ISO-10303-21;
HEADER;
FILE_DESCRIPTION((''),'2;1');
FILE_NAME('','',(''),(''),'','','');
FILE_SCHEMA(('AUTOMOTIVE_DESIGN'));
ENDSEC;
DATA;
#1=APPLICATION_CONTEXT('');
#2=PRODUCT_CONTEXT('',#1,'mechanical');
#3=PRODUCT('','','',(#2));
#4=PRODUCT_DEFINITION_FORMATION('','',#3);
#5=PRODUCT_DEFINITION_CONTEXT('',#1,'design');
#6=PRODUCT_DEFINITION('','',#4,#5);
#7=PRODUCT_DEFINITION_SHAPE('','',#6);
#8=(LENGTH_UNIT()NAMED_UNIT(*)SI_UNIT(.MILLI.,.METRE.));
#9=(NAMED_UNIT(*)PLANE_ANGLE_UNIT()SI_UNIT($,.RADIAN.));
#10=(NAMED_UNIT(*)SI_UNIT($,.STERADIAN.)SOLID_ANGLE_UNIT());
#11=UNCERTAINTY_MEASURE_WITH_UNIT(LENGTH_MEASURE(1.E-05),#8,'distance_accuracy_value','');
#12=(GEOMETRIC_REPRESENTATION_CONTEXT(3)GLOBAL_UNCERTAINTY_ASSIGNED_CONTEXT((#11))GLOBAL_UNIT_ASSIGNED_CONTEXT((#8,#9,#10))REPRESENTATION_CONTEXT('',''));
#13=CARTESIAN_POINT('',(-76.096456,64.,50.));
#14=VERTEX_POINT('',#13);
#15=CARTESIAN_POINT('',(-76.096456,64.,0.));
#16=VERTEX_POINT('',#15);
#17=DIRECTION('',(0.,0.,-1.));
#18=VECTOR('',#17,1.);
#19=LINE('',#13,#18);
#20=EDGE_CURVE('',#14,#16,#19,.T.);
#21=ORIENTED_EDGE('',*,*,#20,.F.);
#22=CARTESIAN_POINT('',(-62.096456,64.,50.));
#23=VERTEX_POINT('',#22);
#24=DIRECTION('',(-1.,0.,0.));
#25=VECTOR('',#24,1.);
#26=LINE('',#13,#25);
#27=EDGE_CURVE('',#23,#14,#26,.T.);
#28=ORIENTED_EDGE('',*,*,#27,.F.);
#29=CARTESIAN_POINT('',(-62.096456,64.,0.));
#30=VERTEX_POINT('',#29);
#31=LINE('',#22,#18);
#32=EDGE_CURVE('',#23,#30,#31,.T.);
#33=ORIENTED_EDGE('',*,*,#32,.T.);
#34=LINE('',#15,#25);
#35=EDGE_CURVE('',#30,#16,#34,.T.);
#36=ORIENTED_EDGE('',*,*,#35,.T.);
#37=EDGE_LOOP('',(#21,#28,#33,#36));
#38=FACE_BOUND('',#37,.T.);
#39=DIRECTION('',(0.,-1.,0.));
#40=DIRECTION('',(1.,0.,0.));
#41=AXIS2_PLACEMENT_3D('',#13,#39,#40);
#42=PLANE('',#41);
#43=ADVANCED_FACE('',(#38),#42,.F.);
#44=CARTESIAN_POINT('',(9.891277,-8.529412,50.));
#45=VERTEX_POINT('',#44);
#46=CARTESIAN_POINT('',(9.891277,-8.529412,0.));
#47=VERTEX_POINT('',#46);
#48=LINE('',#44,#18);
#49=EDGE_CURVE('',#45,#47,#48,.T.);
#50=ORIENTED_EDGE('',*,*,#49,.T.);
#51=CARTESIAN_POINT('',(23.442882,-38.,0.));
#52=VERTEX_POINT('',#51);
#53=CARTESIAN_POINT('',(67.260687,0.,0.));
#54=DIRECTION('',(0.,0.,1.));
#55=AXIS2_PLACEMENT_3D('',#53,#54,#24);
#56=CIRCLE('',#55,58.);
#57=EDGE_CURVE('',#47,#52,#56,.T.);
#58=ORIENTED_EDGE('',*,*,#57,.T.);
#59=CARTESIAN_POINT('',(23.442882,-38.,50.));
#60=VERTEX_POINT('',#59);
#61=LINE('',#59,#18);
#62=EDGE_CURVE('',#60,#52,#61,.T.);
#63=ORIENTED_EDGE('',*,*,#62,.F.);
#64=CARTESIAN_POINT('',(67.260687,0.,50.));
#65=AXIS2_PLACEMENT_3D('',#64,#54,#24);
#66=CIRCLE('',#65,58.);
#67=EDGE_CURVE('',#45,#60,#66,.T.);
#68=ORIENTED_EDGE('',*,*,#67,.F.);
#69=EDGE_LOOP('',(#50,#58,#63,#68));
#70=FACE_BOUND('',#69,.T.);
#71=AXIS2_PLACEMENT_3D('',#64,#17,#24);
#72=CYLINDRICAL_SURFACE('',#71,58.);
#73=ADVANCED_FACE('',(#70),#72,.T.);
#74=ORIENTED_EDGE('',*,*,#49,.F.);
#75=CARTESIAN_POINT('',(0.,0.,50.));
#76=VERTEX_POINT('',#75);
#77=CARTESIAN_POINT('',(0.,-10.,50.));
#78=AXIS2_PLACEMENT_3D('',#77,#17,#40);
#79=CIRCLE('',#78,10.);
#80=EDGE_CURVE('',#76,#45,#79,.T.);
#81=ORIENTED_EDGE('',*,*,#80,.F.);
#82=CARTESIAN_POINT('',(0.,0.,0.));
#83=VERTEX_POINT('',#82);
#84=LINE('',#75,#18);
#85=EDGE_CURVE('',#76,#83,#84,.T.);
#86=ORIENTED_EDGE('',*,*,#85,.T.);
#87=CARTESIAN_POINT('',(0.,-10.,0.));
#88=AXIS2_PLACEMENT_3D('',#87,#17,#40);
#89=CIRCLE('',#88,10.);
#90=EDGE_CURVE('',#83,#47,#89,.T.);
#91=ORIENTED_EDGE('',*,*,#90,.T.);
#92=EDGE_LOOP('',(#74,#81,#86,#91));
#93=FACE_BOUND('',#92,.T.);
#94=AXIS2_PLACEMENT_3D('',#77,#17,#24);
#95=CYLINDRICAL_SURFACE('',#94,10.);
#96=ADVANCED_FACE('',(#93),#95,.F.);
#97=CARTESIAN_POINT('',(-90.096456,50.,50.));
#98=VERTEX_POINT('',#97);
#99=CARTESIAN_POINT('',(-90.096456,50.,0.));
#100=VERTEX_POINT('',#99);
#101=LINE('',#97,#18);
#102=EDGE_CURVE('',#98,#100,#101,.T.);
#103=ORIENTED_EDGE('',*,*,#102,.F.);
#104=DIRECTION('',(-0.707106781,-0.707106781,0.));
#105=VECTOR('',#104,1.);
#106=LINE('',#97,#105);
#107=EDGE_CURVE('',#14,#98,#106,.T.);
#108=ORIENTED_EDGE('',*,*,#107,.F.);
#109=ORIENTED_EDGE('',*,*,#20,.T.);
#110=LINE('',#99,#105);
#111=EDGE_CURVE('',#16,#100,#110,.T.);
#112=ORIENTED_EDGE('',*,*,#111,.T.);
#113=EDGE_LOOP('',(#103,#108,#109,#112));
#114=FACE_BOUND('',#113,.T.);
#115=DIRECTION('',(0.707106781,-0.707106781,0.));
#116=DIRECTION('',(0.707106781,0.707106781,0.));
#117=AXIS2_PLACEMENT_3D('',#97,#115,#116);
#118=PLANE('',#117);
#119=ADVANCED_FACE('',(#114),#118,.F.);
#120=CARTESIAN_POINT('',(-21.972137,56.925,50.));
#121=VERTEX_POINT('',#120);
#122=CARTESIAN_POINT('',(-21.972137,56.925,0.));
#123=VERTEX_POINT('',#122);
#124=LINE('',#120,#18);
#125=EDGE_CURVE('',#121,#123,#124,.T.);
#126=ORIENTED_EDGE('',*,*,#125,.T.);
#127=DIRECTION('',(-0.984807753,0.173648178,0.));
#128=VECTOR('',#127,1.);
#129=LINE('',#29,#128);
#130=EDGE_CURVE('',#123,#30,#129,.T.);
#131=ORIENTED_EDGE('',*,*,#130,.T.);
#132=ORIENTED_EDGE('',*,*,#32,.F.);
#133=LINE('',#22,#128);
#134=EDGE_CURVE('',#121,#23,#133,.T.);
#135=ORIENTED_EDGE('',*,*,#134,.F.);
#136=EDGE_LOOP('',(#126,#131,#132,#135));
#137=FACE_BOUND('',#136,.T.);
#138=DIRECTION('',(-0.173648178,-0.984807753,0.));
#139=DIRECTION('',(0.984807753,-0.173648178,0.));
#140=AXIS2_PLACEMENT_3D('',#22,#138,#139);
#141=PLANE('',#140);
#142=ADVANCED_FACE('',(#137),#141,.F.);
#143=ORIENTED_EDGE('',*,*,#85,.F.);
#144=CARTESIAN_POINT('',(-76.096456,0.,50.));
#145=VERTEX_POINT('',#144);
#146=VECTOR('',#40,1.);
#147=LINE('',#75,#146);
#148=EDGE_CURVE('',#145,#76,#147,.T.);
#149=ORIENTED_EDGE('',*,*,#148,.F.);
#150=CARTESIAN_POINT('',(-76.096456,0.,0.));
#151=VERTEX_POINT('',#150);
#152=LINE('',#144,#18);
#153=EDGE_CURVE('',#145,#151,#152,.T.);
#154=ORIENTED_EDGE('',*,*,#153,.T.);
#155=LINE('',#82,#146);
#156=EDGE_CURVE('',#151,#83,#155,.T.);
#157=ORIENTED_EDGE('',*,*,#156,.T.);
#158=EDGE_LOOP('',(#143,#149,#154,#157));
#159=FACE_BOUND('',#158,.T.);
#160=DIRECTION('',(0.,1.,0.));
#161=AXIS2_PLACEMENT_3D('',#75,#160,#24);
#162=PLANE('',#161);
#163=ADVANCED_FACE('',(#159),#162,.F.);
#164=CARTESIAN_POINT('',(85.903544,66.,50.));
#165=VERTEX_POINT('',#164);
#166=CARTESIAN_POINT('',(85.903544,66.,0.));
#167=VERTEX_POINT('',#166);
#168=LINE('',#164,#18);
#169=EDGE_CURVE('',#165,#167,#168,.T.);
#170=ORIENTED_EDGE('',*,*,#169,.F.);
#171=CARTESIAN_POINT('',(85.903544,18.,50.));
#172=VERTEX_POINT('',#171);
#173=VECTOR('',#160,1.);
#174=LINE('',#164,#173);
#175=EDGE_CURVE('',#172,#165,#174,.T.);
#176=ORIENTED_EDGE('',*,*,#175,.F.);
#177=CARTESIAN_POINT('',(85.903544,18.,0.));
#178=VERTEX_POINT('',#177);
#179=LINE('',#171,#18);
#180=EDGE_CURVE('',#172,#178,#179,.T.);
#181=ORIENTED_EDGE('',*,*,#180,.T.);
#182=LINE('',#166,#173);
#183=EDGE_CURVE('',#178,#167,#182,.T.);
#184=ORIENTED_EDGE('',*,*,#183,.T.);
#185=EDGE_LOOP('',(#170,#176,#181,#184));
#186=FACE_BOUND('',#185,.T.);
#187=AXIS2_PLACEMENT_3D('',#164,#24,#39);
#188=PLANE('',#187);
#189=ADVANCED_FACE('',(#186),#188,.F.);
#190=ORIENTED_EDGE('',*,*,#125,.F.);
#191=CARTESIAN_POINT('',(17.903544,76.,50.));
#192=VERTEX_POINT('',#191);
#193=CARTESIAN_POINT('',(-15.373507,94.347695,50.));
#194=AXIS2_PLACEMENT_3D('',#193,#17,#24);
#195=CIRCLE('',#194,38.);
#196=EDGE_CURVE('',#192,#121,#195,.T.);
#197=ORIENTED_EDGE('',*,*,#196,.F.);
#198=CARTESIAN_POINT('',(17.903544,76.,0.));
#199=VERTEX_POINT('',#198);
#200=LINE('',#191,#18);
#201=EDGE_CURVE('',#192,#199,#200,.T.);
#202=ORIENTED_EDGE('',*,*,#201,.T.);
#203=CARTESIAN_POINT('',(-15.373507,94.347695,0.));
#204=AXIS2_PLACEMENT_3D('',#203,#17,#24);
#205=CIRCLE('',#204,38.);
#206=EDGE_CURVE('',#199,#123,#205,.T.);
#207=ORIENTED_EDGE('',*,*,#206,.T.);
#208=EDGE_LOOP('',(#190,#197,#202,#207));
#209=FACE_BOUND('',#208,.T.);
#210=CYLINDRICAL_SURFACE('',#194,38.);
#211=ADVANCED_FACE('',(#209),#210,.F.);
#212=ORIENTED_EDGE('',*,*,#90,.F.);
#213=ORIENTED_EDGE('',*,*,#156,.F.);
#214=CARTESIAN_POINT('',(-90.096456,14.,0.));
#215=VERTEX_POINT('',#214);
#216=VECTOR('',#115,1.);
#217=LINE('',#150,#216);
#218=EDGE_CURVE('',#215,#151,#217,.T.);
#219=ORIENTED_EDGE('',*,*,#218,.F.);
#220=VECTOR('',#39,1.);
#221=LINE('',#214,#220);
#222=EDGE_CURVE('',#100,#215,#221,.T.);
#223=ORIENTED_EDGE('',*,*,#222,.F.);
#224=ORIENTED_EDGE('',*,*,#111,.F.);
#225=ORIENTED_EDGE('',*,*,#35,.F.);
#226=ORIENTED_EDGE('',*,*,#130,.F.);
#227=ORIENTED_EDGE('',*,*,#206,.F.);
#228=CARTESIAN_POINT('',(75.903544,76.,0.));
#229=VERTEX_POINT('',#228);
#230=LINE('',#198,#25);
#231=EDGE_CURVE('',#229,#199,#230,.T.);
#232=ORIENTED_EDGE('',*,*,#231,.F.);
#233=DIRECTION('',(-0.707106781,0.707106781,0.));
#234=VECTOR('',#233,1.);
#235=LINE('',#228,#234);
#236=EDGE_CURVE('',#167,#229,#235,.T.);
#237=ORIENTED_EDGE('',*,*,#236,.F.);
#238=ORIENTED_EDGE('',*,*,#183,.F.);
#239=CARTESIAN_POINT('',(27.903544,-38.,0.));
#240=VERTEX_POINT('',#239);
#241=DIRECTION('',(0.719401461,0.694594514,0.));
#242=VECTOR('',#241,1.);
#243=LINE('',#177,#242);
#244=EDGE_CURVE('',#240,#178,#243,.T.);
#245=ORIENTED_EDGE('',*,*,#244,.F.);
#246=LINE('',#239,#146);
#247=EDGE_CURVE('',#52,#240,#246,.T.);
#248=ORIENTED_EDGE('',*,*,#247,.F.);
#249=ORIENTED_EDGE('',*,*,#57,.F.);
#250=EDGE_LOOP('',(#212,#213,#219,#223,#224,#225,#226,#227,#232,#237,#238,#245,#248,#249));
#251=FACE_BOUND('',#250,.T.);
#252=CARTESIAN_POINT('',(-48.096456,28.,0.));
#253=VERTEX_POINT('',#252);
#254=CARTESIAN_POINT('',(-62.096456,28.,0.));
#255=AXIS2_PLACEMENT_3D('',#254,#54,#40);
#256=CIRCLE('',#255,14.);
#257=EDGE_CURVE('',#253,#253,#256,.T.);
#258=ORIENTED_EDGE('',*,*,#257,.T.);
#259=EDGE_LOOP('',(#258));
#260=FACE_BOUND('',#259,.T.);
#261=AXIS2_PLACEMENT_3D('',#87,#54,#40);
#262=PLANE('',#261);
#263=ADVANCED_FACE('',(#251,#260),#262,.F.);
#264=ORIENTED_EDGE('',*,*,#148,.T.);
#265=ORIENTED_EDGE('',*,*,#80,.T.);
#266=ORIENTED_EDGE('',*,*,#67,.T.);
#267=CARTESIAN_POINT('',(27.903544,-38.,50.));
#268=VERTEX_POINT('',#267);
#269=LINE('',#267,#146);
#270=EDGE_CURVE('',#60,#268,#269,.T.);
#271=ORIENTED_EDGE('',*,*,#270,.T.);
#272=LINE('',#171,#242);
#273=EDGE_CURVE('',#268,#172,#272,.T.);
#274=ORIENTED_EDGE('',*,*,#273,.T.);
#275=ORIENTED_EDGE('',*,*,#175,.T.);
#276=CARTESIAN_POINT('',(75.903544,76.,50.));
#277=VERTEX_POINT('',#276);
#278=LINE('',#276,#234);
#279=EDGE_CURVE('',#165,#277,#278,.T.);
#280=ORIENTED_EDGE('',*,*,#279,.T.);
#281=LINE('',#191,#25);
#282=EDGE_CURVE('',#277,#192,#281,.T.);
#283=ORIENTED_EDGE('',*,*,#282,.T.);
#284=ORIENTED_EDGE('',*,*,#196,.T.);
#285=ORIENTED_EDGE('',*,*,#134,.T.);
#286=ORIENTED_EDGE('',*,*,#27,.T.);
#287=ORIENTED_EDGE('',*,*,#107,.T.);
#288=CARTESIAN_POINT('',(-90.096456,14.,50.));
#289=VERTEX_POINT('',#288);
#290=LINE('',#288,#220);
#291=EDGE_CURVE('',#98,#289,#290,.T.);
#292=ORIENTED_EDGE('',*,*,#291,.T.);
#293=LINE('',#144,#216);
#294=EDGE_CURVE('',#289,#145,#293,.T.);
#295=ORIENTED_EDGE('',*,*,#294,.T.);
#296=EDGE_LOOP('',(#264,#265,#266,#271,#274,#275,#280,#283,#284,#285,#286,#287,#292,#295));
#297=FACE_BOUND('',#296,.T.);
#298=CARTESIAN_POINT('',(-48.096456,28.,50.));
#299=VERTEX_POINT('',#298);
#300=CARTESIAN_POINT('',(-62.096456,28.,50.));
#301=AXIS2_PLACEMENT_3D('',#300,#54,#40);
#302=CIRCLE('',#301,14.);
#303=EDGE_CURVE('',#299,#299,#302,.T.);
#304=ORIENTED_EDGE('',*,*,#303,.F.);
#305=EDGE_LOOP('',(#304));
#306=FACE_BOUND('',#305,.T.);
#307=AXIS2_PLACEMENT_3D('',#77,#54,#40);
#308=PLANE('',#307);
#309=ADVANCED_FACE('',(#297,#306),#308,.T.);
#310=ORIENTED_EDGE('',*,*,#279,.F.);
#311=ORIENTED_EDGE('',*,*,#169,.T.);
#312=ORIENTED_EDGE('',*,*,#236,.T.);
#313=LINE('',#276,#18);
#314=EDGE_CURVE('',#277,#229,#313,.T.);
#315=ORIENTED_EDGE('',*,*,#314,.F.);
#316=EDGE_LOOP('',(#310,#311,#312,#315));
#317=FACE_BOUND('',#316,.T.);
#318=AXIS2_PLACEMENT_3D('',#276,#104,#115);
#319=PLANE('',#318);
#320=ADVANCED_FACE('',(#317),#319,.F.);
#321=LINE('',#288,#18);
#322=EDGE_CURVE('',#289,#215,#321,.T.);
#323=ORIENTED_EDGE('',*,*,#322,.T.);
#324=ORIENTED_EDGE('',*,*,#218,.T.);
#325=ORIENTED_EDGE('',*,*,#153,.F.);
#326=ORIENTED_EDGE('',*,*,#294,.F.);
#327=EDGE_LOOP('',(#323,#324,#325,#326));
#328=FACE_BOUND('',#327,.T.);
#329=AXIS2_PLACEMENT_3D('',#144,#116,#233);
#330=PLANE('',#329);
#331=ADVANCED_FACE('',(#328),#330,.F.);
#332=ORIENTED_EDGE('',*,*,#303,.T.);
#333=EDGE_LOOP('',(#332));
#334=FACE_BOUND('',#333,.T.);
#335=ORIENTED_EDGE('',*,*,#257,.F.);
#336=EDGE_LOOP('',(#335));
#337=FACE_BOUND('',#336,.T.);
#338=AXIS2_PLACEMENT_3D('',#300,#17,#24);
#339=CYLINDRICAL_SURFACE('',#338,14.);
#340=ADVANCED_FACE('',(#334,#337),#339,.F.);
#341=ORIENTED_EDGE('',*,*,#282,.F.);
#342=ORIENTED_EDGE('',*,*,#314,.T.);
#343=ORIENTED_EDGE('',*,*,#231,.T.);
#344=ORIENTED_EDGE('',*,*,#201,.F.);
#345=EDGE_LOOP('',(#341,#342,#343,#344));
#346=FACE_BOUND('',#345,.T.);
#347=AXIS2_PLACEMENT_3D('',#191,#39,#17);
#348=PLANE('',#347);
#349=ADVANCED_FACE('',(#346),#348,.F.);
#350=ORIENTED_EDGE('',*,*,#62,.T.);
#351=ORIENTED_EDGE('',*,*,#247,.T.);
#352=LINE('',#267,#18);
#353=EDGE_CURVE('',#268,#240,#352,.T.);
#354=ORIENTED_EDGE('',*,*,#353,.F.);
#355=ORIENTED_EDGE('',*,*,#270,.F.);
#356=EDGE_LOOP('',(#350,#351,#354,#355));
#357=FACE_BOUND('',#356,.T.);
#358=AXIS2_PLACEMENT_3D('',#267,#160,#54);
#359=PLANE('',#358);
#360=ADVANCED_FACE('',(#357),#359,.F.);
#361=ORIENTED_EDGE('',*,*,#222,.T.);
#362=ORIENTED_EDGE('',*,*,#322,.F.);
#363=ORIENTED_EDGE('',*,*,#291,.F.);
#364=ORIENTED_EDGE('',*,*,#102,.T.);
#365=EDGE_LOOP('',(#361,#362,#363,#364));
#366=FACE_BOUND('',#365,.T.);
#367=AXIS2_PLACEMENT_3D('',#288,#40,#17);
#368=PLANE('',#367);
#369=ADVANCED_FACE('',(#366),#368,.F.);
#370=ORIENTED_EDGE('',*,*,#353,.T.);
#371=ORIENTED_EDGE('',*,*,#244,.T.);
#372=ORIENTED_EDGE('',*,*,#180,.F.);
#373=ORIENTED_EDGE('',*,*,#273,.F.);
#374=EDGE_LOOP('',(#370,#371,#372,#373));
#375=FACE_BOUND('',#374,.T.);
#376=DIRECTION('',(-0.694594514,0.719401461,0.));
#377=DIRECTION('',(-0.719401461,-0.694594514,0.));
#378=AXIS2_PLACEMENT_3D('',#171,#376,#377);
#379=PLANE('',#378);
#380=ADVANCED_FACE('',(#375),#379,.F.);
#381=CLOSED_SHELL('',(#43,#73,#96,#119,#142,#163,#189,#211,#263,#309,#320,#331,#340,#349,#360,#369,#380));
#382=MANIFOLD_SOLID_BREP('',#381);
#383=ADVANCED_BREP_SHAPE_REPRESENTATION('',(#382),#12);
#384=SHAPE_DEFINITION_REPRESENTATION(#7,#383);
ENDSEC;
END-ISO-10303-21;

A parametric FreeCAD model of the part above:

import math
import FreeCAD as App
import Part
import Sketcher

V = App.Vector
Q = App.Units.Quantity

doc = App.newDocument("Part")
body = doc.addObject("PartDesign::Body", "Body")

# Sketch on XY plane
sketch1 = body.newObject("Sketcher::SketchObject", "Sketch")
sketch1.AttachmentSupport = (doc.getObject("XY_Plane"), [""])
sketch1.MapMode = "FlatFace"
sketch1.addGeometry(Part.LineSegment(V(-76.1, 0, 0), V(0, 0, 0)), False)
sketch1.addGeometry(Part.ArcOfCircle(Part.Circle(V(0, -10, 0), V(0, 0, 1), 10), math.radians(8), math.radians(90)), False)
sketch1.addGeometry(Part.ArcOfCircle(Part.Circle(V(67.3, 0, 0), V(0, 0, 1), 58), math.radians(-172), math.radians(-139)), False)
sketch1.addGeometry(Part.LineSegment(V(23.4, -38, 0), V(27.9, -38, 0)), False)
sketch1.addGeometry(Part.LineSegment(V(27.9, -38, 0), V(85.9, 18, 0)), False)
sketch1.addGeometry(Part.LineSegment(V(85.9, 18, 0), V(85.9, 66, 0)), False)
sketch1.addGeometry(Part.LineSegment(V(85.9, 66, 0), V(75.9, 76, 0)), False)
sketch1.addGeometry(Part.LineSegment(V(75.9, 76, 0), V(17.9, 76, 0)), False)
sketch1.addGeometry(Part.ArcOfCircle(Part.Circle(V(-15.4, 94.3, 0), V(0, 0, 1), 38), math.radians(-100), math.radians(-29)), False)
sketch1.addGeometry(Part.LineSegment(V(-22, 56.9, 0), V(-62.1, 64, 0)), False)
sketch1.addGeometry(Part.LineSegment(V(-62.1, 64, 0), V(-76.1, 64, 0)), False)
sketch1.addGeometry(Part.LineSegment(V(-76.1, 64, 0), V(-90.1, 50, 0)), False)
sketch1.addGeometry(Part.LineSegment(V(-90.1, 50, 0), V(-90.1, 14, 0)), False)
sketch1.addGeometry(Part.LineSegment(V(-90.1, 14, 0), V(-76.1, 0, 0)), False)
sketch1.addGeometry(Part.Circle(V(-62.1, 28, 0), V(0, 0, 1), 14), False)
sketch1.addConstraint(Sketcher.Constraint("Tangent", 0, 2, 1, 2))
sketch1.addConstraint(Sketcher.Constraint("Tangent", 1, 1, 2, 1))
sketch1.addConstraint(Sketcher.Constraint("Coincident", 2, 2, 3, 1))
sketch1.addConstraint(Sketcher.Constraint("Coincident", 3, 2, 4, 1))
sketch1.addConstraint(Sketcher.Constraint("Coincident", 4, 2, 5, 1))
sketch1.addConstraint(Sketcher.Constraint("Coincident", 5, 2, 6, 1))
sketch1.addConstraint(Sketcher.Constraint("Coincident", 6, 2, 7, 1))
sketch1.addConstraint(Sketcher.Constraint("Coincident", 7, 2, 8, 2))
sketch1.addConstraint(Sketcher.Constraint("Tangent", 8, 1, 9, 1))
sketch1.addConstraint(Sketcher.Constraint("Coincident", 9, 2, 10, 1))
sketch1.addConstraint(Sketcher.Constraint("Coincident", 10, 2, 11, 1))
sketch1.addConstraint(Sketcher.Constraint("Coincident", 11, 2, 12, 1))
sketch1.addConstraint(Sketcher.Constraint("Coincident", 12, 2, 13, 1))
sketch1.addConstraint(Sketcher.Constraint("Coincident", 13, 2, 0, 1))
sketch1.addConstraint(Sketcher.Constraint("Horizontal", 0))
sketch1.addConstraint(Sketcher.Constraint("Horizontal", 3))
sketch1.addConstraint(Sketcher.Constraint("Vertical", 5))
sketch1.addConstraint(Sketcher.Constraint("Horizontal", 7))
sketch1.addConstraint(Sketcher.Constraint("Horizontal", 10))
sketch1.addConstraint(Sketcher.Constraint("Vertical", 12))
sketch1.addConstraint(Sketcher.Constraint("Coincident", 0, 2, -1, 1))
sketch1.addConstraint(Sketcher.Constraint("PointOnObject", 2, 3, -1))
sketch1.addConstraint(Sketcher.Constraint("Perpendicular", 6, 11))
sketch1.addConstraint(Sketcher.Constraint("Perpendicular", 11, 13))
sketch1.addConstraint(Sketcher.Constraint("Vertical", 14, 3, 9, 2))
sketch1.addConstraint(Sketcher.Constraint("Vertical", 10, 2, 13, 2))
sketch1.addConstraint(Sketcher.Constraint("Equal", 11, 13))
sketch1.addConstraint(Sketcher.Constraint("Diameter", 14, 28.0))
sketch1.addConstraint(Sketcher.Constraint("Radius", 1, 10.0))
sketch1.addConstraint(Sketcher.Constraint("Radius", 2, 58.0))
sketch1.addConstraint(Sketcher.Constraint("Radius", 8, 38.0))
sketch1.addConstraint(Sketcher.Constraint("DistanceX", 7, 2, 7, 1, 58.0))
sketch1.addConstraint(Sketcher.Constraint("DistanceX", 10, 2, 10, 1, 14.0))
sketch1.addConstraint(Sketcher.Constraint("DistanceY", 5, 1, 5, 2, 48.0))
sketch1.addConstraint(Sketcher.Constraint("DistanceY", 12, 2, 12, 1, 36.0))
sketch1.addConstraint(Sketcher.Constraint("Angle", 9, Q("170 deg")))
sketch1.addConstraint(Sketcher.Constraint("DistanceY", -1, 1, 14, 3, 28.0))
sketch1.addConstraint(Sketcher.Constraint("DistanceY", 2, 2, -1, 1, 38.0))
sketch1.addConstraint(Sketcher.Constraint("DistanceY", -1, 1, 4, 2, 18.0))
sketch1.addConstraint(Sketcher.Constraint("DistanceY", -1, 1, 6, 2, 76.0))
sketch1.addConstraint(Sketcher.Constraint("DistanceY", -1, 1, 9, 2, 64.0))
sketch1.addConstraint(Sketcher.Constraint("DistanceX", 3, 2, 4, 2, 58.0))
sketch1.addConstraint(Sketcher.Constraint("DistanceX", 9, 2, 7, 2, 80.0))
sketch1.addConstraint(Sketcher.Constraint("DistanceX", 3, 1, 3, 2, 4.460662))
pad1 = body.newObject("PartDesign::Pad", "Pad")
pad1.Profile = sketch1
pad1.Length = 50

doc.recompute()
